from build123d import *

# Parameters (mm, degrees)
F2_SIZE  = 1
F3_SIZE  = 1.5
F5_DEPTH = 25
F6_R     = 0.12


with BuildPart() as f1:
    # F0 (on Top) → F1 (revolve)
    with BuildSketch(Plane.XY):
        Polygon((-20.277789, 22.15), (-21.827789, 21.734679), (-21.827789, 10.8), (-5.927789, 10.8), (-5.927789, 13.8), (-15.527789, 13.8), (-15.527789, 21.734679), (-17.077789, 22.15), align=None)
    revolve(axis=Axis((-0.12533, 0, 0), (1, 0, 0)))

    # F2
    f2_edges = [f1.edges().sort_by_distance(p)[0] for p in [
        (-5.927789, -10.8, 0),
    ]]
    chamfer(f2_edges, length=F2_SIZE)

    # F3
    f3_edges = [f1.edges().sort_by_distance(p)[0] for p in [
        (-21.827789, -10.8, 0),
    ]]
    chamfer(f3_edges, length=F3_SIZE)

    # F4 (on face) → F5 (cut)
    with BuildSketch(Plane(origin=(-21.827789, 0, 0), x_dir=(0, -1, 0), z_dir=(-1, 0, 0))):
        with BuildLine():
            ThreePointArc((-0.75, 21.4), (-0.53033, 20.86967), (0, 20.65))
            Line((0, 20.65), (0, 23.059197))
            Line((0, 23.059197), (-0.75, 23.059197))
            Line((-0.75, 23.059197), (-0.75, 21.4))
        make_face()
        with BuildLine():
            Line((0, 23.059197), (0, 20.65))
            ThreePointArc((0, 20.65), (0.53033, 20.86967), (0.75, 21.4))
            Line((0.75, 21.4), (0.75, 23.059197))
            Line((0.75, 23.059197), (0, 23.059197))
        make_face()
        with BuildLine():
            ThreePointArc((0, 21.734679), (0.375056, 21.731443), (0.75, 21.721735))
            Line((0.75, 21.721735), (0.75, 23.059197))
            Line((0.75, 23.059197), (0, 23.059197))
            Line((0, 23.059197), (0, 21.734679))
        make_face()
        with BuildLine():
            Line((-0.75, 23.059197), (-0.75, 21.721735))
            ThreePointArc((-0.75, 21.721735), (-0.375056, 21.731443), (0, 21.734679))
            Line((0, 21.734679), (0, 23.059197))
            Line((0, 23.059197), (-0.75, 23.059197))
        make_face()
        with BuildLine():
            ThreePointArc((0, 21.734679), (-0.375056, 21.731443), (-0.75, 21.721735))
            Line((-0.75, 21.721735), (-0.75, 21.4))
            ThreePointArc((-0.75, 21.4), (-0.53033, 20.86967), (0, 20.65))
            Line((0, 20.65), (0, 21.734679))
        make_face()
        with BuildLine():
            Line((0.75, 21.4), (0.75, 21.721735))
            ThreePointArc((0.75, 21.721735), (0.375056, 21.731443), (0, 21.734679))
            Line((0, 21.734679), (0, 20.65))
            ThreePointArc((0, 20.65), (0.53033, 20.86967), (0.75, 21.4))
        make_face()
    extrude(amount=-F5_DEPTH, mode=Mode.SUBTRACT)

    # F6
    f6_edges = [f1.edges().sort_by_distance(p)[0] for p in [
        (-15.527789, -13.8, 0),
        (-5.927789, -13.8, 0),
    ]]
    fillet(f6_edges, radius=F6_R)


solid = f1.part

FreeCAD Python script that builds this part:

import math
import FreeCAD as App
import Part
import Sketcher

V = App.Vector
Q = App.Units.Quantity


def edges_at(feature, points):
    """Names of the edges that pass closest to the given points."""
    edges = feature.Shape.Edges
    near = lambda p: min(range(len(edges)), key=lambda i: edges[i].distToShape(Part.Vertex(*p))[0])
    return sorted({f"Edge{near(p) + 1}" for p in points})


def add_polygon(sketch, points):
    """Adds a closed chain of lines whose ends are joined by coincident constraints."""
    first, n = sketch.GeometryCount, len(points)
    for a, b in zip(points, points[1:] + points[:1]):
        sketch.addGeometry(Part.LineSegment(App.Vector(*a, 0), App.Vector(*b, 0)), False)
    for i in range(n):
        sketch.addConstraint(Sketcher.Constraint("Coincident", first + i, 2, first + (i + 1) % n, 1))

doc = App.newDocument("Part")
params = doc.addObject("Spreadsheet::Sheet", "Params")
for row, (alias, value) in enumerate([
    ("sketch1_height", "3 mm"),
    ("sketch1_width", "15.9 mm"),
    ("sketch1_width2", "9.6 mm"),
    ("sketch1_width3", "3.2 mm"),
    ("revolution_angle", "360 deg"),
    ("chamfer_size", "1 mm"),
    ("chamfer2_size", "1.5 mm"),
    ("sketch2_radius", "0.75 mm"),
    ("pocket1_length", "25 mm"),
    ("fillet_radius", "0.12 mm"),
], start=1):
    params.set(f"A{row}", alias)
    params.set(f"B{row}", "=" + value)
    params.setAlias(f"B{row}", alias)

body = doc.addObject("PartDesign::Body", "Body")

sketch1 = doc.addObject("Sketcher::SketchObject", "Sketch")
body.addObject(sketch1)
sketch1.AttachmentSupport = (doc.XY_Plane, [""])
sketch1.MapMode = "FlatFace"
add_polygon(sketch1, [(-20.3, 22.1), (-21.8, 21.7), (-21.8, 10.8), (-5.9, 10.8), (-5.9, 13.8), (-15.5, 13.8), (-15.5, 21.7), (-17.1, 22.1)])
sketch1.addConstraint([
    Sketcher.Constraint("Vertical", 1),
    Sketcher.Constraint("Horizontal", 2),
    Sketcher.Constraint("Vertical", 3),
    Sketcher.Constraint("Horizontal", 4),
    Sketcher.Constraint("Vertical", 5),
    Sketcher.Constraint("Horizontal", 7),
    Sketcher.Constraint("Horizontal", 0, 2, 5, 2),
    Sketcher.Constraint("Equal", 0, 6),
    Sketcher.Constraint("DistanceY", 3, 1, 3, 2, Q("3 mm")),
    Sketcher.Constraint("Angle", 0, Q("-165.000009 deg")),
    Sketcher.Constraint("DistanceX", 2, 1, 2, 2, Q("15.9 mm")),
    Sketcher.Constraint("DistanceX", 4, 2, 4, 1, Q("9.6 mm")),
    Sketcher.Constraint("DistanceX", 7, 2, 7, 1, Q("3.2 mm")),
    Sketcher.Constraint("DistanceY", -1, 1, 1, 2, Q("10.8 mm")),
    Sketcher.Constraint("DistanceY", -1, 1, 6, 2, Q("22.15 mm")),
    Sketcher.Constraint("DistanceX", 0, 2, -1, 1, Q("21.827789 mm")),
])
sketch1.setExpression("Constraints[16]", "Params.sketch1_height")
sketch1.setExpression("Constraints[18]", "Params.sketch1_width")
sketch1.setExpression("Constraints[19]", "Params.sketch1_width2")
sketch1.setExpression("Constraints[20]", "Params.sketch1_width3")
revolution = doc.addObject("PartDesign::Revolution", "Revolution")
body.addObject(revolution)
revolution.Profile = sketch1
revolution.ReferenceAxis = (sketch1, ["H_Axis"])
revolution.setExpression("Angle", "Params.revolution_angle")
doc.recompute()

chamfer = doc.addObject("PartDesign::Chamfer", "Chamfer")
body.addObject(chamfer)
chamfer.Base = (revolution, edges_at(revolution, [(-5.928, -10.8, 0)]))
chamfer.setExpression("Size", "Params.chamfer_size")
doc.recompute()

chamfer2 = doc.addObject("PartDesign::Chamfer", "Chamfer001")
body.addObject(chamfer2)
chamfer2.Base = (chamfer, edges_at(chamfer, [(-21.828, -10.8, 0)]))
chamfer2.setExpression("Size", "Params.chamfer2_size")

sketch2 = doc.addObject("Sketcher::SketchObject", "Sketch001")
body.addObject(sketch2)
sketch2.AttachmentSupport = (doc.YZ_Plane, [""])
sketch2.MapMode = "FlatFace"
sketch2.AttachmentOffset = App.Placement(V(0, 0, -21.827789), App.Rotation())
sketch2.addGeometry([
    Part.LineSegment(V(-0.8, 23.1, 0), V(0.8, 23.1, 0)),
    Part.LineSegment(V(0.8, 23.1, 0), V(0.8, 21.4, 0)),
    Part.ArcOfCircle(Part.Circle(V(0, 21.4, 0), V(0, 0, 1), 0.8), math.radians(-90), math.radians(0)),
    Part.ArcOfCircle(Part.Circle(V(0, 21.4, 0), V(0, 0, 1), 0.8), math.radians(-180), math.radians(-90)),
    Part.LineSegment(V(-0.8, 21.4, 0), V(-0.8, 23.1, 0)),
], False)
sketch2.addConstraint([
    Sketcher.Constraint("Coincident", 0, 2, 1, 1),
    Sketcher.Constraint("Tangent", 1, 2, 2, 2),
    Sketcher.Constraint("Tangent", 2, 1, 3, 2),
    Sketcher.Constraint("Tangent", 3, 1, 4, 1),
    Sketcher.Constraint("Coincident", 4, 2, 0, 1),
    Sketcher.Constraint("Horizontal", 0),
    Sketcher.Constraint("Vertical", 1),
    Sketcher.Constraint("Vertical", 4),
    Sketcher.Constraint("Equal", 2, 3),
    Sketcher.Constraint("PointOnObject", 2, 3, -2),
    Sketcher.Constraint("PointOnObject", 2, 1, -2),
    Sketcher.Constraint("Radius", 2, Q("0.75 mm")),
    Sketcher.Constraint("DistanceY", -1, 1, 2, 3, Q("21.4 mm")),
    Sketcher.Constraint("DistanceY", 1, 2, 1, 1, Q("1.659197 mm")),
])
sketch2.setExpression("Constraints[11]", "Params.sketch2_radius")
pocket1 = doc.addObject("PartDesign::Pocket", "Pocket")
body.addObject(pocket1)
pocket1.Profile = sketch2
pocket1.setExpression("Length", "Params.pocket1_length")
pocket1.Reversed = True
doc.recompute()

fillet = doc.addObject("PartDesign::Fillet", "Fillet")
body.addObject(fillet)
fillet.Base = (pocket1, edges_at(pocket1, [(-15.528, -13.8, 0), (-5.928, -13.8, 0)]))
fillet.setExpression("Radius", "Params.fillet_radius")

doc.recompute()
